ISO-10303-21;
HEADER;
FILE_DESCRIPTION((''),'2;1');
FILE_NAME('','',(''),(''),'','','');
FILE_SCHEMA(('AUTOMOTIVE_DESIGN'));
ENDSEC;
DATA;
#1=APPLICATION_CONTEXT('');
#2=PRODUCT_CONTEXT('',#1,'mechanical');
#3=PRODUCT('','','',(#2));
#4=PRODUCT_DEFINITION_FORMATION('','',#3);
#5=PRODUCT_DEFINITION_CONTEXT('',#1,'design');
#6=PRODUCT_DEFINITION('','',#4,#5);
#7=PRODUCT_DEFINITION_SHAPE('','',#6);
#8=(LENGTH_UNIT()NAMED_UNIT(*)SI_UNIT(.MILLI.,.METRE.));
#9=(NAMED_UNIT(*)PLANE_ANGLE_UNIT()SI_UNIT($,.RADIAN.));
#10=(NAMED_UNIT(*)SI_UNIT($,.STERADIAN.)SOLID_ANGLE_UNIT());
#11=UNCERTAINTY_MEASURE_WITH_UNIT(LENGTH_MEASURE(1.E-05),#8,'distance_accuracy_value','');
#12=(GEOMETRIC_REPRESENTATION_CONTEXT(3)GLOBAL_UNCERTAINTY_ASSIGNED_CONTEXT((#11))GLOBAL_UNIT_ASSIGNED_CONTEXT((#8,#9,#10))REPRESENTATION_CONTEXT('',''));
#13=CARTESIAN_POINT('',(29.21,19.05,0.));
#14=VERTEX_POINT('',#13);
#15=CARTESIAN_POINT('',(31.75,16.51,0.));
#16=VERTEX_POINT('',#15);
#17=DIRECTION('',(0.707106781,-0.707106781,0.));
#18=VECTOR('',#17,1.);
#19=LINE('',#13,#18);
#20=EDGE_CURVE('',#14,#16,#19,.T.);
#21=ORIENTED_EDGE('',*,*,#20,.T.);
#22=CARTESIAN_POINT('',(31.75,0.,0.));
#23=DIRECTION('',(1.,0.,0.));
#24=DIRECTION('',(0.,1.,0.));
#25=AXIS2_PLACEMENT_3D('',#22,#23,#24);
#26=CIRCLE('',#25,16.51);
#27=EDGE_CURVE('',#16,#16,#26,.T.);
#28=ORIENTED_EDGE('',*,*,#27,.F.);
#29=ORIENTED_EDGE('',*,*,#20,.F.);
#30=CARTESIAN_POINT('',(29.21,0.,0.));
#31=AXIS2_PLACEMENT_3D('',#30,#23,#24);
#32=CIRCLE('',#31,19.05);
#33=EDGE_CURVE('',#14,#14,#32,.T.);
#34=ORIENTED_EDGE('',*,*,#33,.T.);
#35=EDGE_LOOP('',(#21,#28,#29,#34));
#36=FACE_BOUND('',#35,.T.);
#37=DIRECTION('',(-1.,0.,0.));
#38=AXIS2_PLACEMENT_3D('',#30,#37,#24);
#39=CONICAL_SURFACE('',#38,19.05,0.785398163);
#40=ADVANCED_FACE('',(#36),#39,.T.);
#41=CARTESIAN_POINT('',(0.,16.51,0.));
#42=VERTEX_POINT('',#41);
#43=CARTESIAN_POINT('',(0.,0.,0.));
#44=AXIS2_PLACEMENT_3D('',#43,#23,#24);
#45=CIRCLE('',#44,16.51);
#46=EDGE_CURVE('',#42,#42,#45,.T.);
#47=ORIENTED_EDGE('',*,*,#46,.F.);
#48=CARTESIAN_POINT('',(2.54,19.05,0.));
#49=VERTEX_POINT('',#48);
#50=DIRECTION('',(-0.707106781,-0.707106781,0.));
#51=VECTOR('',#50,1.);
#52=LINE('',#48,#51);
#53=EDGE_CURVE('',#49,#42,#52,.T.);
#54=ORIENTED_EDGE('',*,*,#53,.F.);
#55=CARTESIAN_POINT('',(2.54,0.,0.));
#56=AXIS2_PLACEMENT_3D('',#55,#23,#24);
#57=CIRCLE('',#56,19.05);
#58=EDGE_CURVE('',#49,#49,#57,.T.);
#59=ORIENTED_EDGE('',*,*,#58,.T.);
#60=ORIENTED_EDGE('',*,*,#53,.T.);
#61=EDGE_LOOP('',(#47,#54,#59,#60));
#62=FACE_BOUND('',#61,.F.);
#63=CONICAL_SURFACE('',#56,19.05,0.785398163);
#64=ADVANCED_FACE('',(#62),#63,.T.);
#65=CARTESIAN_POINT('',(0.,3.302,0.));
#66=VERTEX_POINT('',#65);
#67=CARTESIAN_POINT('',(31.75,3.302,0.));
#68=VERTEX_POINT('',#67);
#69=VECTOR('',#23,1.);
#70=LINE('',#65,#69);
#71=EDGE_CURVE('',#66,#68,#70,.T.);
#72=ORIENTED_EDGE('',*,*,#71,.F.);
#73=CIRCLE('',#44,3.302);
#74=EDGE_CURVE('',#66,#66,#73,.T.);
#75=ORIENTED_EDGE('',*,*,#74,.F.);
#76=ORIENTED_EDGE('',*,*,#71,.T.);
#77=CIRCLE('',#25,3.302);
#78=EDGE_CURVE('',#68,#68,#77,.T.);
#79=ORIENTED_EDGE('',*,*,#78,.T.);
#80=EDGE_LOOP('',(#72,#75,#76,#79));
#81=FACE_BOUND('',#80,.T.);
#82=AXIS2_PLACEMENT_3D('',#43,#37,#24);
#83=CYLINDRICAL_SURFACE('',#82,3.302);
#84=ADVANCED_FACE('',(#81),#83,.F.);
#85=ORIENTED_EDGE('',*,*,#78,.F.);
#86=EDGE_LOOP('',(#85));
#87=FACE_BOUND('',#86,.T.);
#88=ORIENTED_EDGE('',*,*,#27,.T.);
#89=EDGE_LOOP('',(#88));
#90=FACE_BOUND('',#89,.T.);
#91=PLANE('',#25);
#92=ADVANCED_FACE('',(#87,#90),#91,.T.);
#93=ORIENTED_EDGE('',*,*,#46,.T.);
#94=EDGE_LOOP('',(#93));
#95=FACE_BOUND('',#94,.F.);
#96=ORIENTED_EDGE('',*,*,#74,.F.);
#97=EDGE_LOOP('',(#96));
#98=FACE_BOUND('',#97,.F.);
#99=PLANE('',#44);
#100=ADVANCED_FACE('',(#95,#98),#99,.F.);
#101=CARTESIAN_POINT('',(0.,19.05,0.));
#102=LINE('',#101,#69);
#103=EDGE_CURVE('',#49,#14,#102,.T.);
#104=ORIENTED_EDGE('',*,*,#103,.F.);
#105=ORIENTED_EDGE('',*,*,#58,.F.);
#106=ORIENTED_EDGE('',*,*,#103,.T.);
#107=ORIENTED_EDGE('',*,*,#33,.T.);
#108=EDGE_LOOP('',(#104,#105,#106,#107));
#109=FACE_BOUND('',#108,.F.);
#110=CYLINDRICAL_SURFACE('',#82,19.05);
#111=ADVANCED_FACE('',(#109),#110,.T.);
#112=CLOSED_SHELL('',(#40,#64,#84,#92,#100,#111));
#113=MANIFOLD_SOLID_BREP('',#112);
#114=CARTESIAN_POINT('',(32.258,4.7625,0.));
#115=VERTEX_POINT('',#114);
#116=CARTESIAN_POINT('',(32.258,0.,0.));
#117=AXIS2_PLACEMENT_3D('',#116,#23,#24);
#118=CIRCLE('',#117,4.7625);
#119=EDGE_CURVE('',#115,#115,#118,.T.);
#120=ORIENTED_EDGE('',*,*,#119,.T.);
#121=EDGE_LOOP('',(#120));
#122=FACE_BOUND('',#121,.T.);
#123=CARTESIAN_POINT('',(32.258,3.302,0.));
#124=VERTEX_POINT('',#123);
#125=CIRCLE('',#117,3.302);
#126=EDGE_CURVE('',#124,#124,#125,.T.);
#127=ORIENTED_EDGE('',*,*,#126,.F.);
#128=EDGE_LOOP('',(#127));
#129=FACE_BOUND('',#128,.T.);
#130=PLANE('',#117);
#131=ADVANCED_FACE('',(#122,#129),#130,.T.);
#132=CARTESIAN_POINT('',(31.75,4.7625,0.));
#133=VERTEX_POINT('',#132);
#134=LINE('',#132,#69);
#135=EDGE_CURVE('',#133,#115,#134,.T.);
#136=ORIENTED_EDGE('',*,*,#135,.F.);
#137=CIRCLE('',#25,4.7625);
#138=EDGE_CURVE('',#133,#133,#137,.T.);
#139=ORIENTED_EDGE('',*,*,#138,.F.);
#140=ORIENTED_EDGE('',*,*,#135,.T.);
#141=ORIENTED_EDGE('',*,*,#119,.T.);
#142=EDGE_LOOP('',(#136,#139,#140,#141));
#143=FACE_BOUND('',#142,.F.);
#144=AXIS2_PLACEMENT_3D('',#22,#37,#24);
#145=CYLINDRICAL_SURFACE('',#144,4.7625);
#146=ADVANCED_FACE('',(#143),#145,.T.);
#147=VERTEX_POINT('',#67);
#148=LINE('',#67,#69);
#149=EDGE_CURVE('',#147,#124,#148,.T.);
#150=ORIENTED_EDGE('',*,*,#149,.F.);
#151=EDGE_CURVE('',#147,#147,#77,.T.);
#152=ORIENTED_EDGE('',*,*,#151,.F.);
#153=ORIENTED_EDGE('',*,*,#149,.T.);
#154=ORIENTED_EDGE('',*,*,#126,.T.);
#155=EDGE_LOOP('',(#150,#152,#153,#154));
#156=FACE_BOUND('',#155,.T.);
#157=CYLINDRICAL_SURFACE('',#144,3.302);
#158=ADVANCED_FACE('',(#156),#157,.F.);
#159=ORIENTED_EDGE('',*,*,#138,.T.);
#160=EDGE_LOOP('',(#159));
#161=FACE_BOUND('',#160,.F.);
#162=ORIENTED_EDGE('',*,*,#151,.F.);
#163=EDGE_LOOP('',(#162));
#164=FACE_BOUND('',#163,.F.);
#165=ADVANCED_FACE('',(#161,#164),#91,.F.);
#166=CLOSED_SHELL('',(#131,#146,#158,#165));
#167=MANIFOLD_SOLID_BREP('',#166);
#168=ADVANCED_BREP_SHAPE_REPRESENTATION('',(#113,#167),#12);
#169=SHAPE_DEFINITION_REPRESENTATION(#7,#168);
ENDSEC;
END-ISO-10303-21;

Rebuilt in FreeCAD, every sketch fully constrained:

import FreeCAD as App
import Part
import Sketcher
from FreeCAD import Vector
Q = App.Units.Quantity


def edges_at(feature, points):
    """Names of the edges that pass closest to the given points."""
    edges = feature.Shape.Edges
    near = lambda p: min(range(len(edges)), key=lambda i: edges[i].distToShape(Part.Vertex(*p))[0])
    return sorted({f"Edge{near(p) + 1}" for p in points})

doc = App.newDocument("Part")
body = doc.addObject("PartDesign::Body", "Body")

# Sketch on YZ plane
sketch1 = body.newObject("Sketcher::SketchObject", "Sketch")
sketch1.AttachmentSupport = (doc.getObject("YZ_Plane"), [""])
sketch1.MapMode = "FlatFace"
sketch1.addGeometry(Part.Circle(Vector(0, 0, 0), Vector(0, 0, 1), 19.05), False)
sketch1.addConstraint(Sketcher.Constraint("Coincident", 0, 3, -1, 1))
sketch1.addConstraint(Sketcher.Constraint("Diameter", 0, Q("1.5 in")))
pad1 = body.newObject("PartDesign::Pad", "Pad")
pad1.Profile = sketch1
pad1.Length = Q("1.25 in")

# Sketch on YZ plane
sketch2 = body.newObject("Sketcher::SketchObject", "Sketch001")
sketch2.AttachmentSupport = (doc.getObject("YZ_Plane"), [""])
sketch2.MapMode = "FlatFace"
sketch2.addGeometry(Part.Circle(Vector(0, 0, 0), Vector(0, 0, 1), 3.302), False)
sketch2.addConstraint(Sketcher.Constraint("Coincident", 0, 3, -1, 1))
sketch2.addConstraint(Sketcher.Constraint("Diameter", 0, Q("0.26 in")))
pocket1 = body.newObject("PartDesign::Pocket", "Pocket")
pocket1.Profile = sketch2
pocket1.Length = Q("1.25 in")
pocket1.Reversed = True
doc.recompute()

chamfer = body.newObject("PartDesign::Chamfer", "Chamfer")
chamfer.Base = (pocket1, edges_at(pocket1, [(31.75, -19.05, 0), (0, -19.05, 0)]))
chamfer.Size = Q("0.1 in")
body2 = doc.addObject("PartDesign::Body", "Body001")

# Sketch on YZ plane
sketch3 = body2.newObject("Sketcher::SketchObject", "Sketch002")
sketch3.AttachmentSupport = (doc.getObject("YZ_Plane001"), [""])
sketch3.MapMode = "FlatFace"
sketch3.AttachmentOffset = App.Placement(Vector(0, 0, 1.25 * 25.4), App.Rotation())
sketch3.addGeometry(Part.Circle(Vector(0, 0, 0), Vector(0, 0, 1), 4.7625), False)
sketch3.addGeometry(Part.Circle(Vector(0, 0, 0), Vector(0, 0, 1), 3.302), False)
sketch3.addConstraint(Sketcher.Constraint("Coincident", 0, 3, -1, 1))
sketch3.addConstraint(Sketcher.Constraint("Coincident", 1, 3, -1, 1))
sketch3.addConstraint(Sketcher.Constraint("Diameter", 1, Q("0.26 in")))
sketch3.addConstraint(Sketcher.Constraint("Diameter", 0, Q("0.375 in")))
pad2 = body2.newObject("PartDesign::Pad", "Pad001")
pad2.Profile = sketch3
pad2.Length = Q("0.02 in")

doc.recompute()
